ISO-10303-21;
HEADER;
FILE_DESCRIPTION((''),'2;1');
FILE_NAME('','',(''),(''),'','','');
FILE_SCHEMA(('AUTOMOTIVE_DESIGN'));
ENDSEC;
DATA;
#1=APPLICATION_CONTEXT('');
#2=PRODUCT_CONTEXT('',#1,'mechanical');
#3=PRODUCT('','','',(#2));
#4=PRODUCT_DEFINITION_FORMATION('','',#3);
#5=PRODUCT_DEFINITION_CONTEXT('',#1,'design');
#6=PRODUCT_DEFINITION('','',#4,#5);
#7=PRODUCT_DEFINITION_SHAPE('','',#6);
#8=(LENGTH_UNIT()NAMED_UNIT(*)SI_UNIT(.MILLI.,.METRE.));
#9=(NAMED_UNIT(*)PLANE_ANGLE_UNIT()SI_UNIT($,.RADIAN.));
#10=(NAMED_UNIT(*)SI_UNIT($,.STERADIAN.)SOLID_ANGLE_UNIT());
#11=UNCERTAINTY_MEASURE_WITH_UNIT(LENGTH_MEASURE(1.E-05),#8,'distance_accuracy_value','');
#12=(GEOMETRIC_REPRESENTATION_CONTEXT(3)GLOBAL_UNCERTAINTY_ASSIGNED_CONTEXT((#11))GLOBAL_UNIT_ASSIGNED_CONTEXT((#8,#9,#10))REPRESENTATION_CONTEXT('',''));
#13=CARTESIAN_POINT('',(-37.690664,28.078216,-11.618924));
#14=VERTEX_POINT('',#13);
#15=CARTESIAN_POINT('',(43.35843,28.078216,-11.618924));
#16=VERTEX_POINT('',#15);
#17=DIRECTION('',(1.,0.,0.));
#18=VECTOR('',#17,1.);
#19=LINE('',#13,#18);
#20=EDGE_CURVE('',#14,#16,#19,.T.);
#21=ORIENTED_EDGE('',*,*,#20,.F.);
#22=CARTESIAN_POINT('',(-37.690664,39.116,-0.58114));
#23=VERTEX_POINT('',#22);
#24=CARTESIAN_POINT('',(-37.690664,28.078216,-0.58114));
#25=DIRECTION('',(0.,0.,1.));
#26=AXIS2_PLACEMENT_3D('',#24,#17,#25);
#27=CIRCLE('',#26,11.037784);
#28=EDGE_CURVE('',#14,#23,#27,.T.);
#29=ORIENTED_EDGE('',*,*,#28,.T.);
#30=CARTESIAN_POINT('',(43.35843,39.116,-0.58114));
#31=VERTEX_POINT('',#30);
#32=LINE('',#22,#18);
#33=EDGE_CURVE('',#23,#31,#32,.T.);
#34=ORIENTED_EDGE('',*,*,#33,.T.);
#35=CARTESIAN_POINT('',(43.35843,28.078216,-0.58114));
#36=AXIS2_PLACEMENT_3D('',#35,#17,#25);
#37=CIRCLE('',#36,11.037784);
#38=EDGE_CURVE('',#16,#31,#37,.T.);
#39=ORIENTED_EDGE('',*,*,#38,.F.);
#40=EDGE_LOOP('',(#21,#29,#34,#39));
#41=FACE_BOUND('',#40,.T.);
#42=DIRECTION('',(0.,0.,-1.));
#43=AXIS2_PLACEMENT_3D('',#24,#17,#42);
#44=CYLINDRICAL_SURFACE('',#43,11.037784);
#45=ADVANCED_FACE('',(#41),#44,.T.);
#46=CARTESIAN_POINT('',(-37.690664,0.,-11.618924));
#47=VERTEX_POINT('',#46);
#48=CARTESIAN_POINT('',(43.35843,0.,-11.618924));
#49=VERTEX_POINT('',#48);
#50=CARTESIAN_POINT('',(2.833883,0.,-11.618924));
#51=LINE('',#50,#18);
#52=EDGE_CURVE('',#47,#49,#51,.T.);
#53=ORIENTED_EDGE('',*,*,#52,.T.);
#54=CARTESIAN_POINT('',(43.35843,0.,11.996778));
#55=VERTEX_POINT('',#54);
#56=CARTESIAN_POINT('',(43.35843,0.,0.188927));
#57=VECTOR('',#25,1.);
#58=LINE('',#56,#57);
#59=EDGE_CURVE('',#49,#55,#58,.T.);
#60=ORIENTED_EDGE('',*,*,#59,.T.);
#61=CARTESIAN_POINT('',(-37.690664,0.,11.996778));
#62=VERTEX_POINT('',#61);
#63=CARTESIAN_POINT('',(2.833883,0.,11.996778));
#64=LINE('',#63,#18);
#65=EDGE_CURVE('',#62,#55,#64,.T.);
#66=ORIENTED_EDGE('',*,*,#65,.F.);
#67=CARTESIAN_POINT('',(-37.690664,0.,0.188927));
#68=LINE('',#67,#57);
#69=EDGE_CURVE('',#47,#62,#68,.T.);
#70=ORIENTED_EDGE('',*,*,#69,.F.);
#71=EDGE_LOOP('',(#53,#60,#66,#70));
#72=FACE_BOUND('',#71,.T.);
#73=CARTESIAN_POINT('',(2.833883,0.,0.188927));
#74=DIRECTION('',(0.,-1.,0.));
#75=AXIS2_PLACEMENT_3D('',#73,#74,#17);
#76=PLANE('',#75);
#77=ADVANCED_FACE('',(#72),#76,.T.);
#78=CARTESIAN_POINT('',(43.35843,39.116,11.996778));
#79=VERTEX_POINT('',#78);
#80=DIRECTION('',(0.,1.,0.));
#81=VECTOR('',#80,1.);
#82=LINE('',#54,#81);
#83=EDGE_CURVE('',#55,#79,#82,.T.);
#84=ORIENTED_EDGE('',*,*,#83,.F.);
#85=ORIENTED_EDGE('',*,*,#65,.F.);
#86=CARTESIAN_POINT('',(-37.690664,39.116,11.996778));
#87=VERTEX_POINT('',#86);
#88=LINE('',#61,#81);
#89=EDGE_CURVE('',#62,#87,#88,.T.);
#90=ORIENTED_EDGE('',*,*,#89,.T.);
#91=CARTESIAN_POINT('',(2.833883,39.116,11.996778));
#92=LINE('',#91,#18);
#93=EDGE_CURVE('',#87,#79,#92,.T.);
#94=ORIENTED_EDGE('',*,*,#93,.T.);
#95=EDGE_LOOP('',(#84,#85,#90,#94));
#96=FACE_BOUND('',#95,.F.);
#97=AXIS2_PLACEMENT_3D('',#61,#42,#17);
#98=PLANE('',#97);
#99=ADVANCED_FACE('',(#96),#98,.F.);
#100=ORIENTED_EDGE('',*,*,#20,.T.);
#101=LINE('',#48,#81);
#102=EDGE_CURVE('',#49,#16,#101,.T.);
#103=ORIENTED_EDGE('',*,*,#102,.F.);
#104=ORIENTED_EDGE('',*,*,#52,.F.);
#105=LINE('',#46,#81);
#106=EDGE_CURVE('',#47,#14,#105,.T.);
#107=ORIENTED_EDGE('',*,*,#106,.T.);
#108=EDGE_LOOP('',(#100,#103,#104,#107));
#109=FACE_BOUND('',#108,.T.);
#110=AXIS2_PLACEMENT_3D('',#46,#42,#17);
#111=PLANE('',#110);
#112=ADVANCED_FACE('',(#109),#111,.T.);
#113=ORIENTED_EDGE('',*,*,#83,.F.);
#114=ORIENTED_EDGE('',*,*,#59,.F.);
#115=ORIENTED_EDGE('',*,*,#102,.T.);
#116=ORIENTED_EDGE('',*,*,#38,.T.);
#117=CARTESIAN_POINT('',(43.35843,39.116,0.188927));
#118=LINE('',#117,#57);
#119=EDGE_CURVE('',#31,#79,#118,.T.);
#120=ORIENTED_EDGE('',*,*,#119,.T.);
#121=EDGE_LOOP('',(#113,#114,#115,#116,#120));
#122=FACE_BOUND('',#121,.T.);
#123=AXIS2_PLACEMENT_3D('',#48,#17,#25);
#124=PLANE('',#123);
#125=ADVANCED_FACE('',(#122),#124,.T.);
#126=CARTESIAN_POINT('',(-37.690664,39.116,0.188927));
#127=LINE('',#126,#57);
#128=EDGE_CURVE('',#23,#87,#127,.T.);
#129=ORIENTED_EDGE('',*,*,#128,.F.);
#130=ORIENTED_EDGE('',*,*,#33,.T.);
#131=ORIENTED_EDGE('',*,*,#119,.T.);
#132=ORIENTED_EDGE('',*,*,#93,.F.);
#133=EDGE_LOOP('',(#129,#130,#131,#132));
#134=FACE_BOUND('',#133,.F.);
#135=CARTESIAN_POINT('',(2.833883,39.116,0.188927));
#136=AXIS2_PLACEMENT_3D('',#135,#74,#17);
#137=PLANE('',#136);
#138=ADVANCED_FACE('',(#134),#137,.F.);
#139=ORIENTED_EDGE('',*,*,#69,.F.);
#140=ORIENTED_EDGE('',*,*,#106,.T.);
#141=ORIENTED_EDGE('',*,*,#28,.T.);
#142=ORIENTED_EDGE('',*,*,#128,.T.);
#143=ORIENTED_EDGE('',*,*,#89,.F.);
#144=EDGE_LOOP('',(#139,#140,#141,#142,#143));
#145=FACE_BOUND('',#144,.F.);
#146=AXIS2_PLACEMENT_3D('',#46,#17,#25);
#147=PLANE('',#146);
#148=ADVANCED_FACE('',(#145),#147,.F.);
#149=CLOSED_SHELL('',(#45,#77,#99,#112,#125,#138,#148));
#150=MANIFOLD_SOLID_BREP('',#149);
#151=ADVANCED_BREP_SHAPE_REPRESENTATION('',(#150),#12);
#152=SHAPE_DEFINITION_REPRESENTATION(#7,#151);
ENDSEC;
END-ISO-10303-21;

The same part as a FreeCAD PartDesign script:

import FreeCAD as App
import Part
import Sketcher
from FreeCAD import Vector
Q = App.Units.Quantity


def edges_at(feature, points):
    """Names of the edges that pass closest to the given points."""
    edges = feature.Shape.Edges
    near = lambda p: min(range(len(edges)), key=lambda i: edges[i].distToShape(Part.Vertex(*p))[0])
    return sorted({f"Edge{near(p) + 1}" for p in points})

doc = App.newDocument("Part")
body = doc.addObject("PartDesign::Body", "Body")

sketch1 = doc.addObject("Sketcher::SketchObject", "Sketch")
body.addObject(sketch1)
sketch1.AttachmentSupport = (doc.XZ_Plane, [""])
sketch1.MapMode = "FlatFace"
sketch1.addGeometry([
    Part.LineSegment(Vector(-37.690664, 11.996778, 0), Vector(-37.690664, -11.618924, 0)),
    Part.LineSegment(Vector(-37.690664, -11.618924, 0), Vector(43.35843, -11.618924, 0)),
    Part.LineSegment(Vector(43.35843, -11.618924, 0), Vector(43.35843, 11.996778, 0)),
    Part.LineSegment(Vector(43.35843, 11.996778, 0), Vector(-37.690664, 11.996778, 0)),
], False)
sketch1.addConstraint([
    Sketcher.Constraint("Coincident", 0, 2, 1, 1),
    Sketcher.Constraint("Coincident", 1, 2, 2, 1),
    Sketcher.Constraint("Coincident", 2, 2, 3, 1),
    Sketcher.Constraint("Coincident", 3, 2, 0, 1),
    Sketcher.Constraint("Vertical", 0),
    Sketcher.Constraint("Horizontal", 1),
    Sketcher.Constraint("Vertical", 2),
    Sketcher.Constraint("Horizontal", 3),
    Sketcher.Constraint("DistanceY", 0, 2, 0, 1, Q("23.615702 mm")),
    Sketcher.Constraint("DistanceX", 1, 1, 1, 2, Q("81.049094 mm")),
    Sketcher.Constraint("DistanceX", -1, 1, 1, 2, Q("43.35843 mm")),
    Sketcher.Constraint("DistanceY", -1, 1, 2, 2, Q("11.996778 mm")),
])
pad1 = doc.addObject("PartDesign::Pad", "Pad")
body.addObject(pad1)
pad1.Profile = sketch1
pad1.Length = Q("1.54 in")
pad1.Reversed = True
doc.recompute()

fillet = doc.addObject("PartDesign::Fillet", "Fillet")
body.addObject(fillet)
fillet.Base = (pad1, edges_at(pad1, [(2.834, 39.116, -11.619)]))
fillet.Radius = 11.037784

doc.recompute()
